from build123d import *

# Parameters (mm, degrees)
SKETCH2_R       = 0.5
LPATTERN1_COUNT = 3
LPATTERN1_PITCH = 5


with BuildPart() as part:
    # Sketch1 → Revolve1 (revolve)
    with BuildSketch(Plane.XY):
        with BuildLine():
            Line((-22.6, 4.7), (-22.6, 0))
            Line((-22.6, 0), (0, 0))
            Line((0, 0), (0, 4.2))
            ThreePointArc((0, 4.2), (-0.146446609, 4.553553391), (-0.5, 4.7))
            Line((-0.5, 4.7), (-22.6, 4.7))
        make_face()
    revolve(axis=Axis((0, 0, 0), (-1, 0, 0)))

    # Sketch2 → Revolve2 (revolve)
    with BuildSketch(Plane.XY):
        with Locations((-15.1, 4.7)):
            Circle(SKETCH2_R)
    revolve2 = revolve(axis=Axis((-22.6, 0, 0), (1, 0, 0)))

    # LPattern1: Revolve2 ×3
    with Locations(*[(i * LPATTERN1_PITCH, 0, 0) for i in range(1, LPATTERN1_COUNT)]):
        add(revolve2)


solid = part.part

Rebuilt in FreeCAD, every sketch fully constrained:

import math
import FreeCAD as App
import Part
import Sketcher

doc = App.newDocument("Part")
body = doc.addObject("PartDesign::Body", "Body")

sketch1 = body.newObject("Sketcher::SketchObject", "Sketch")
sketch1.AttachmentSupport = (doc.getObject("XY_Plane"), [""])
sketch1.MapMode = "FlatFace"
sketch1.addGeometry(Part.LineSegment(App.Vector(-22.6, 4.7, 0), App.Vector(-22.6, 0, 0)), False)
sketch1.addGeometry(Part.LineSegment(App.Vector(-22.6, 0, 0), App.Vector(0, 0, 0)), False)
sketch1.addGeometry(Part.LineSegment(App.Vector(0, 0, 0), App.Vector(0, 4.2, 0)), False)
sketch1.addGeometry(Part.ArcOfCircle(Part.Circle(App.Vector(-0.5, 4.2, 0), App.Vector(0, 0, 1), 0.5), math.radians(0), math.radians(90)), False)
sketch1.addGeometry(Part.LineSegment(App.Vector(-0.5, 4.7, 0), App.Vector(-22.6, 4.7, 0)), False)
sketch1.addConstraint(Sketcher.Constraint("Coincident", 0, 2, 1, 1))
sketch1.addConstraint(Sketcher.Constraint("Coincident", 1, 2, 2, 1))
sketch1.addConstraint(Sketcher.Constraint("Tangent", 2, 2, 3, 1))
sketch1.addConstraint(Sketcher.Constraint("Tangent", 3, 2, 4, 1))
sketch1.addConstraint(Sketcher.Constraint("Coincident", 4, 2, 0, 1))
sketch1.addConstraint(Sketcher.Constraint("Vertical", 0))
sketch1.addConstraint(Sketcher.Constraint("Horizontal", 1))
sketch1.addConstraint(Sketcher.Constraint("Vertical", 2))
sketch1.addConstraint(Sketcher.Constraint("Horizontal", 4))
sketch1.addConstraint(Sketcher.Constraint("Coincident", 1, 2, -1, 1))
sketch1.addConstraint(Sketcher.Constraint("Radius", 3, 0.5))
sketch1.addConstraint(Sketcher.Constraint("DistanceX", 1, 1, 1, 2, 22.6))
sketch1.addConstraint(Sketcher.Constraint("DistanceY", 0, 2, 0, 1, 4.7))
revolution = body.newObject("PartDesign::Revolution", "Revolution")
revolution.Profile = sketch1
revolution.ReferenceAxis = (sketch1, ["H_Axis"])
revolution.Angle = 360

sketch2 = body.newObject("Sketcher::SketchObject", "Sketch001")
sketch2.AttachmentSupport = (doc.getObject("XY_Plane"), [""])
sketch2.MapMode = "FlatFace"
sketch2.addGeometry(Part.Circle(App.Vector(-15.1, 4.7, 0), App.Vector(0, 0, 1), 0.5), False)
sketch2.addConstraint(Sketcher.Constraint("Diameter", 0, 1.0))
sketch2.addConstraint(Sketcher.Constraint("DistanceX", 0, 3, -1, 1, 15.1))
sketch2.addConstraint(Sketcher.Constraint("DistanceY", -1, 1, 0, 3, 4.7))
revolution2 = body.newObject("PartDesign::Revolution", "Revolution001")
revolution2.Profile = sketch2
revolution2.ReferenceAxis = (sketch2, ["H_Axis"])
revolution2.Angle = 360
doc.recompute()

linearpattern = body.newObject("PartDesign::LinearPattern", "LinearPattern")
linearpattern.Originals = [revolution2]
linearpattern.Direction = (doc.getObject("X_Axis"), [""])
linearpattern.Mode = "offset"
linearpattern.Offset = 5
linearpattern.Occurrences = 3
body.Tip = linearpattern

doc.recompute()
